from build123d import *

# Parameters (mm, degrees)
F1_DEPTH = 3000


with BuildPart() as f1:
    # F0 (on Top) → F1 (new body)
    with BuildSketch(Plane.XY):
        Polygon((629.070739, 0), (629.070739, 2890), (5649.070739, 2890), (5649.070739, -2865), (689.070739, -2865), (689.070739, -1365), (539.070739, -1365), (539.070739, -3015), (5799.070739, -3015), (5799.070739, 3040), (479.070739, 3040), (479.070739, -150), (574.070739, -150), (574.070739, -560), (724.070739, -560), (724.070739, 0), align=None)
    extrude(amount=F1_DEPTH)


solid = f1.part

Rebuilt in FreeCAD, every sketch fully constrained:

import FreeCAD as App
import Part
import Sketcher
Q = App.Units.Quantity


def add_polygon(sketch, points):
    """Adds a closed chain of lines whose ends are joined by coincident constraints."""
    first, n = sketch.GeometryCount, len(points)
    for a, b in zip(points, points[1:] + points[:1]):
        sketch.addGeometry(Part.LineSegment(App.Vector(*a, 0), App.Vector(*b, 0)), False)
    for i in range(n):
        sketch.addConstraint(Sketcher.Constraint("Coincident", first + i, 2, first + (i + 1) % n, 1))

doc = App.newDocument("Part")
body = doc.addObject("PartDesign::Body", "Body")

# Sketch on XY plane
sketch1 = body.newObject("Sketcher::SketchObject", "Sketch")
sketch1.AttachmentSupport = (doc.getObject("XY_Plane"), [""])
sketch1.MapMode = "FlatFace"
add_polygon(sketch1, [(629, 0), (629, 2890), (5649, 2890), (5649, -2865), (689, -2865), (689, -1365), (539, -1365), (539, -3015), (5799, -3015), (5799, 3040), (479, 3040), (479, -150), (574, -150), (574, -560), (724, -560), (724, 0)])  # lines 0-15
sketch1.addConstraint([
    Sketcher.Constraint("Vertical", 0),
    Sketcher.Constraint("Horizontal", 1),
    Sketcher.Constraint("Vertical", 2),
    Sketcher.Constraint("Horizontal", 3),
    Sketcher.Constraint("Vertical", 4),
    Sketcher.Constraint("Horizontal", 5),
    Sketcher.Constraint("Vertical", 6),
    Sketcher.Constraint("Horizontal", 7),
    Sketcher.Constraint("Vertical", 8),
    Sketcher.Constraint("Horizontal", 9),
    Sketcher.Constraint("Vertical", 10),
    Sketcher.Constraint("Horizontal", 11),
    Sketcher.Constraint("Vertical", 12),
    Sketcher.Constraint("Horizontal", 13),
    Sketcher.Constraint("Vertical", 14),
    Sketcher.Constraint("Horizontal", 15),
    Sketcher.Constraint("PointOnObject", 14, 2, -1),
    Sketcher.Constraint("Equal", 5, 13),
    Sketcher.Constraint("Equal", 11, 15),
    Sketcher.Constraint("DistanceX", 1, 1, 1, 2, Q("5020 mm")),
    Sketcher.Constraint("DistanceX", 3, 2, 3, 1, Q("4960 mm")),
    Sketcher.Constraint("DistanceX", 5, 2, 5, 1, Q("150 mm")),
    Sketcher.Constraint("DistanceX", 7, 1, 7, 2, Q("5260 mm")),
    Sketcher.Constraint("DistanceX", 11, 1, 11, 2, Q("95 mm")),
    Sketcher.Constraint("DistanceY", 0, 1, 0, 2, Q("2890 mm")),
    Sketcher.Constraint("DistanceY", 2, 2, 2, 1, Q("5755 mm")),
    Sketcher.Constraint("DistanceY", 4, 1, 4, 2, Q("1500 mm")),
    Sketcher.Constraint("DistanceY", 6, 2, 6, 1, Q("1650 mm")),
    Sketcher.Constraint("DistanceY", 8, 1, 8, 2, Q("6055 mm")),
    Sketcher.Constraint("DistanceY", 10, 2, 10, 1, Q("3190 mm")),
    Sketcher.Constraint("DistanceY", 12, 2, 12, 1, Q("410 mm")),
    Sketcher.Constraint("DistanceX", -1, 1, 0, 2, Q("629.070739 mm")),
])
pad1 = body.newObject("PartDesign::Pad", "Pad")
pad1.Profile = sketch1
pad1.Length = 3000

doc.recompute()
